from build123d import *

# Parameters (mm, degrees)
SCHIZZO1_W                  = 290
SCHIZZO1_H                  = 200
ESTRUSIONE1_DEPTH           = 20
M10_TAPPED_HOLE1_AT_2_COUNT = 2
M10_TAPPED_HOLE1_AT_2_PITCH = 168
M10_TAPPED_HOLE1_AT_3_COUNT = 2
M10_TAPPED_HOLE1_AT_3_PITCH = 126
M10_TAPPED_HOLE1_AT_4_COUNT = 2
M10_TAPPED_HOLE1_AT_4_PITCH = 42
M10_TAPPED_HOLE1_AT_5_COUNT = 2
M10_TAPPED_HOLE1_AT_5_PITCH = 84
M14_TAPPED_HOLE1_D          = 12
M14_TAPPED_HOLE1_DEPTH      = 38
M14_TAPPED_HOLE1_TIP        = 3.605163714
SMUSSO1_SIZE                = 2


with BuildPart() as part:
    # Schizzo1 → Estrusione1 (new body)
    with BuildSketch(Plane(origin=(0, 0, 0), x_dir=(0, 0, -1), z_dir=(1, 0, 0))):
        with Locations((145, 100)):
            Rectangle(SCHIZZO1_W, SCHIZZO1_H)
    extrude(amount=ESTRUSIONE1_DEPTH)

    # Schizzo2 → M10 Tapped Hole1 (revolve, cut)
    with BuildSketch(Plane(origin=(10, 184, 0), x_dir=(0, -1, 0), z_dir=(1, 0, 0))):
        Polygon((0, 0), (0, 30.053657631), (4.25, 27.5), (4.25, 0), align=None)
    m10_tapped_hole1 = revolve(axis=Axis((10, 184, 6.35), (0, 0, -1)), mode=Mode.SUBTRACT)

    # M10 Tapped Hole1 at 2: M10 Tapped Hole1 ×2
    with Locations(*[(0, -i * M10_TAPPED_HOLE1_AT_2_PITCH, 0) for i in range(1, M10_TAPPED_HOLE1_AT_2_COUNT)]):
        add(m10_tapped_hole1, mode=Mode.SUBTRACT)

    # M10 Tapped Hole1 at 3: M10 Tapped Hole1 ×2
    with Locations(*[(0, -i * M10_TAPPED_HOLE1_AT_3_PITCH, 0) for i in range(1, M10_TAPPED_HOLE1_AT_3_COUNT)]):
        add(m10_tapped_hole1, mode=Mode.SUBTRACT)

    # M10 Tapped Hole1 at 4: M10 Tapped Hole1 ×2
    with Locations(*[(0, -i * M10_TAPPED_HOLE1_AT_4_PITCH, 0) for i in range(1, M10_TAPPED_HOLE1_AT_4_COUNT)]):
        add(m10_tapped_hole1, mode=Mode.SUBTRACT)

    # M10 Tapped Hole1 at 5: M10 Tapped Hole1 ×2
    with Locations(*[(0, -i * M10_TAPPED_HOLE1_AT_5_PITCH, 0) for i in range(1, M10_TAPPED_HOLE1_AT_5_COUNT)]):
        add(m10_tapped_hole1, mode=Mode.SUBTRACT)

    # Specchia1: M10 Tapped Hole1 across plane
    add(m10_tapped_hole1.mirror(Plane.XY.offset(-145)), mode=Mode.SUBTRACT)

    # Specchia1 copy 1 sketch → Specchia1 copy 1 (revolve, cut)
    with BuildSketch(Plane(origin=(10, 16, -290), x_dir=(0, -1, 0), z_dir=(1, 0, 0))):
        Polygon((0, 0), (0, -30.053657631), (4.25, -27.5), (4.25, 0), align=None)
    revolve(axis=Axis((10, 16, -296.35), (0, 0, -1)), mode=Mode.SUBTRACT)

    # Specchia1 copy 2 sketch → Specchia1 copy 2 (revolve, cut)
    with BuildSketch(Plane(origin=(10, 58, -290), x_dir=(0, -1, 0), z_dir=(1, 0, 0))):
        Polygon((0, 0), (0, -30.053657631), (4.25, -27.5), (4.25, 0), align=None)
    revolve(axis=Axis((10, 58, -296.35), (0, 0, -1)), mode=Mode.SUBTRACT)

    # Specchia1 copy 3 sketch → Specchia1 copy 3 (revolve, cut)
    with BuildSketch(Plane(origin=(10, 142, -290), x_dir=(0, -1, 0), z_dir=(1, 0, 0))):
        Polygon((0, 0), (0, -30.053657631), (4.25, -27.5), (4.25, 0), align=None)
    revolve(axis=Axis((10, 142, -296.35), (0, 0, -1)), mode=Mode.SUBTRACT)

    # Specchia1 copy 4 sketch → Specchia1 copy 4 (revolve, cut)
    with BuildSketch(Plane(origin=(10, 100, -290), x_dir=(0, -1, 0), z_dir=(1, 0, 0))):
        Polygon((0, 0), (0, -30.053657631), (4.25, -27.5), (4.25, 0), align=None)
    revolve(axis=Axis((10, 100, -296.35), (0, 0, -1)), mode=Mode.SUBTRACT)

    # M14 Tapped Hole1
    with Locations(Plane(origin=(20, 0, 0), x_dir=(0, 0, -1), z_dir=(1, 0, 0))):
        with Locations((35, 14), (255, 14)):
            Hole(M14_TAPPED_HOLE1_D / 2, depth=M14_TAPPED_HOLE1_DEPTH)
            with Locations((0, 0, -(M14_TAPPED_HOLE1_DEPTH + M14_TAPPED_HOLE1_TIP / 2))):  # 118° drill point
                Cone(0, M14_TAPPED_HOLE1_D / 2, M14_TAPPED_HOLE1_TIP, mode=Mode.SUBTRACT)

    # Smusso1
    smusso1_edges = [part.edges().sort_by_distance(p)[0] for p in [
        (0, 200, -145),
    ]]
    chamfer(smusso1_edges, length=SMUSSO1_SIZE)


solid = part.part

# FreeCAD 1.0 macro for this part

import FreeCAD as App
import Part
import Sketcher
from FreeCAD import Vector
Q = App.Units.Quantity


def edges_at(feature, points):
    """Names of the edges that pass closest to the given points."""
    edges = feature.Shape.Edges
    near = lambda p: min(range(len(edges)), key=lambda i: edges[i].distToShape(Part.Vertex(*p))[0])
    return sorted({f"Edge{near(p) + 1}" for p in points})

doc = App.newDocument("Part")
params = doc.addObject("Spreadsheet::Sheet", "Params")
for row, (alias, value) in enumerate([
    ("sketch1_width", "200 mm"),
    ("sketch1_height", "290 mm"),
    ("pad1_length", "20 mm"),
    ("sketch2_height", "27.5 mm"),
    ("sketch2_width", "4.25 mm"),
    ("groove_angle", "360 deg"),
    ("linearpattern_pitch", "168 mm"),
    ("linearpattern2_pitch", "126 mm"),
    ("linearpattern3_pitch", "42 mm"),
    ("linearpattern4_pitch", "84 mm"),
    ("sketch3_height", "27.5 mm"),
    ("sketch3_width", "4.25 mm"),
    ("groove2_angle", "360 deg"),
    ("sketch4_height", "27.5 mm"),
    ("sketch4_width", "4.25 mm"),
    ("groove3_angle", "360 deg"),
    ("sketch5_height", "27.5 mm"),
    ("sketch5_width", "4.25 mm"),
    ("groove4_angle", "360 deg"),
    ("sketch6_height", "27.5 mm"),
    ("sketch6_width", "4.25 mm"),
    ("groove5_angle", "360 deg"),
    ("sketch7_diameter", "12 mm"),
    ("hole_diameter", "12 mm"),
    ("hole_depth", "38 mm"),
    ("chamfer_size", "2 mm"),
], start=1):
    params.set(f"A{row}", alias)
    params.set(f"B{row}", "=" + value)
    params.setAlias(f"B{row}", alias)

body = doc.addObject("PartDesign::Body", "Body")

# Sketch on YZ plane
sketch1 = body.newObject("Sketcher::SketchObject", "Sketch")
sketch1.AttachmentSupport = (doc.getObject("YZ_Plane"), [""])
sketch1.MapMode = "FlatFace"
sketch1.addGeometry([
    Part.LineSegment(Vector(200, 0, 0), Vector(0, 0, 0)),
    Part.LineSegment(Vector(0, 0, 0), Vector(0, -290, 0)),
    Part.LineSegment(Vector(0, -290, 0), Vector(200, -290, 0)),
    Part.LineSegment(Vector(200, -290, 0), Vector(200, 0, 0)),
], False)
sketch1.addConstraint([
    Sketcher.Constraint("Coincident", 0, 2, 1, 1),
    Sketcher.Constraint("Coincident", 1, 2, 2, 1),
    Sketcher.Constraint("Coincident", 2, 2, 3, 1),
    Sketcher.Constraint("Coincident", 3, 2, 0, 1),
    Sketcher.Constraint("Horizontal", 0),
    Sketcher.Constraint("Vertical", 1),
    Sketcher.Constraint("Horizontal", 2),
    Sketcher.Constraint("Vertical", 3),
    Sketcher.Constraint("Coincident", 0, 2, -1, 1),
    Sketcher.Constraint("DistanceX", 0, 2, 0, 1, 200.0),
    Sketcher.Constraint("DistanceY", 1, 2, 1, 1, 290.0),
])
sketch1.setExpression("Constraints[9]", "Params.sketch1_width")
sketch1.setExpression("Constraints[10]", "Params.sketch1_height")
pad1 = body.newObject("PartDesign::Pad", "Pad")
pad1.Profile = sketch1
pad1.setExpression("Length", "Params.pad1_length")

# Sketch on YZ plane
sketch2 = body.newObject("Sketcher::SketchObject", "Sketch001")
sketch2.AttachmentSupport = (doc.getObject("YZ_Plane"), [""])
sketch2.MapMode = "FlatFace"
sketch2.AttachmentOffset = App.Placement(Vector(0, 0, 10), App.Rotation())
sketch2.addGeometry([
    Part.LineSegment(Vector(184, -30.053658, 0), Vector(184, 0, 0)),
    Part.LineSegment(Vector(184, 0, 0), Vector(179.75, 0, 0)),
    Part.LineSegment(Vector(179.75, 0, 0), Vector(179.75, -27.5, 0)),
    Part.LineSegment(Vector(179.75, -27.5, 0), Vector(184, -30.053658, 0)),
], False)
sketch2.addGeometry(Part.LineSegment(Vector(184, 0, 0), Vector(184, -30.053658, 0)), True)  # axis
sketch2.addConstraint([
    Sketcher.Constraint("Coincident", 0, 2, 1, 1),
    Sketcher.Constraint("Coincident", 1, 2, 2, 1),
    Sketcher.Constraint("Coincident", 2, 2, 3, 1),
    Sketcher.Constraint("Coincident", 3, 2, 0, 1),
    Sketcher.Constraint("Vertical", 0),
    Sketcher.Constraint("Horizontal", 1),
    Sketcher.Constraint("Vertical", 2),
    Sketcher.Constraint("Vertical", 4),
    Sketcher.Constraint("Coincident", 4, 1, 0, 2),
    Sketcher.Constraint("PointOnObject", 0, 2, -1),
    Sketcher.Constraint("Equal", 0, 4),
    Sketcher.Constraint("Angle", 3, Q("-31 deg")),
    Sketcher.Constraint("DistanceY", 2, 2, 2, 1, 27.5),
    Sketcher.Constraint("DistanceX", -1, 1, 0, 2, 184.0),
    Sketcher.Constraint("DistanceX", 1, 2, 1, 1, 4.25),
])
sketch2.setExpression("Constraints[12]", "Params.sketch2_height")
sketch2.setExpression("Constraints[14]", "Params.sketch2_width")
groove = body.newObject("PartDesign::Groove", "Groove")
groove.Profile = sketch2
groove.ReferenceAxis = (sketch2, ["Axis0"])
groove.setExpression("Angle", "Params.groove_angle")
doc.recompute()

linearpattern = body.newObject("PartDesign::LinearPattern", "LinearPattern")
linearpattern.Originals = [groove]
linearpattern.Direction = (doc.getObject("Y_Axis"), [""])
linearpattern.Mode = "offset"
linearpattern.setExpression("Offset", "Params.linearpattern_pitch")
linearpattern.Occurrences = 2
linearpattern.Reversed = True
body.Tip = linearpattern
doc.recompute()

linearpattern2 = body.newObject("PartDesign::LinearPattern", "LinearPattern001")
linearpattern2.Originals = [groove]
linearpattern2.Direction = (doc.getObject("Y_Axis"), [""])
linearpattern2.Mode = "offset"
linearpattern2.setExpression("Offset", "Params.linearpattern2_pitch")
linearpattern2.Occurrences = 2
linearpattern2.Reversed = True
body.Tip = linearpattern2
doc.recompute()

linearpattern3 = body.newObject("PartDesign::LinearPattern", "LinearPattern002")
linearpattern3.Originals = [groove]
linearpattern3.Direction = (doc.getObject("Y_Axis"), [""])
linearpattern3.Mode = "offset"
linearpattern3.setExpression("Offset", "Params.linearpattern3_pitch")
linearpattern3.Occurrences = 2
linearpattern3.Reversed = True
body.Tip = linearpattern3
doc.recompute()

linearpattern4 = body.newObject("PartDesign::LinearPattern", "LinearPattern003")
linearpattern4.Originals = [groove]
linearpattern4.Direction = (doc.getObject("Y_Axis"), [""])
linearpattern4.Mode = "offset"
linearpattern4.setExpression("Offset", "Params.linearpattern4_pitch")
linearpattern4.Occurrences = 2
linearpattern4.Reversed = True
body.Tip = linearpattern4
doc.recompute()

datumplane = body.newObject("PartDesign::Plane", "DatumPlane")
datumplane.AttachmentSupport = (doc.getObject("XY_Plane"), [""])
datumplane.MapMode = "FlatFace"
datumplane.AttachmentOffset = App.Placement(Vector(0, 0, -145), App.Rotation())
mirrored = body.newObject("PartDesign::Mirrored", "Mirrored")
mirrored.Originals = [groove]
mirrored.MirrorPlane = (datumplane, [""])
body.Tip = mirrored

# Sketch on YZ plane
sketch3 = body.newObject("Sketcher::SketchObject", "Sketch002")
sketch3.AttachmentSupport = (doc.getObject("YZ_Plane"), [""])
sketch3.MapMode = "FlatFace"
sketch3.AttachmentOffset = App.Placement(Vector(0, 0, 10), App.Rotation())
sketch3.addGeometry([
    Part.LineSegment(Vector(16, -290, 0), Vector(16, -259.946342, 0)),
    Part.LineSegment(Vector(16, -259.946342, 0), Vector(11.75, -262.5, 0)),
    Part.LineSegment(Vector(11.75, -262.5, 0), Vector(11.75, -290, 0)),
    Part.LineSegment(Vector(11.75, -290, 0), Vector(16, -290, 0)),
], False)
sketch3.addGeometry(Part.LineSegment(Vector(16, -259.946342, 0), Vector(16, -290, 0)), True)  # axis
sketch3.addConstraint([
    Sketcher.Constraint("Coincident", 0, 2, 1, 1),
    Sketcher.Constraint("Coincident", 1, 2, 2, 1),
    Sketcher.Constraint("Coincident", 2, 2, 3, 1),
    Sketcher.Constraint("Coincident", 3, 2, 0, 1),
    Sketcher.Constraint("Vertical", 0),
    Sketcher.Constraint("Vertical", 2),
    Sketcher.Constraint("Horizontal", 3),
    Sketcher.Constraint("Vertical", 4),
    Sketcher.Constraint("Coincident", 4, 1, 0, 2),
    Sketcher.Constraint("Horizontal", 2, 2, 4, 2),
    Sketcher.Constraint("Angle", 1, Q("-149 deg")),
    Sketcher.Constraint("DistanceY", 2, 2, 2, 1, 27.5),
    Sketcher.Constraint("DistanceX", -1, 1, 0, 2, 16.0),
    Sketcher.Constraint("DistanceY", 2, 2, -1, 1, 290.0),
    Sketcher.Constraint("DistanceX", 3, 1, 3, 2, 4.25),
])
sketch3.setExpression("Constraints[11]", "Params.sketch3_height")
sketch3.setExpression("Constraints[14]", "Params.sketch3_width")
groove2 = body.newObject("PartDesign::Groove", "Groove001")
groove2.Profile = sketch3
groove2.ReferenceAxis = (sketch3, ["Axis0"])
groove2.setExpression("Angle", "Params.groove2_angle")

# Sketch on YZ plane
sketch4 = body.newObject("Sketcher::SketchObject", "Sketch003")
sketch4.AttachmentSupport = (doc.getObject("YZ_Plane"), [""])
sketch4.MapMode = "FlatFace"
sketch4.AttachmentOffset = App.Placement(Vector(0, 0, 10), App.Rotation())
sketch4.addGeometry([
    Part.LineSegment(Vector(58, -290, 0), Vector(58, -259.946342, 0)),
    Part.LineSegment(Vector(58, -259.946342, 0), Vector(53.75, -262.5, 0)),
    Part.LineSegment(Vector(53.75, -262.5, 0), Vector(53.75, -290, 0)),
    Part.LineSegment(Vector(53.75, -290, 0), Vector(58, -290, 0)),
], False)
sketch4.addGeometry(Part.LineSegment(Vector(58, -259.946342, 0), Vector(58, -290, 0)), True)  # axis
sketch4.addConstraint([
    Sketcher.Constraint("Coincident", 0, 2, 1, 1),
    Sketcher.Constraint("Coincident", 1, 2, 2, 1),
    Sketcher.Constraint("Coincident", 2, 2, 3, 1),
    Sketcher.Constraint("Coincident", 3, 2, 0, 1),
    Sketcher.Constraint("Vertical", 0),
    Sketcher.Constraint("Vertical", 2),
    Sketcher.Constraint("Horizontal", 3),
    Sketcher.Constraint("Vertical", 4),
    Sketcher.Constraint("Coincident", 4, 1, 0, 2),
    Sketcher.Constraint("Horizontal", 2, 2, 4, 2),
    Sketcher.Constraint("Angle", 1, Q("-149 deg")),
    Sketcher.Constraint("DistanceY", 2, 2, 2, 1, 27.5),
    Sketcher.Constraint("DistanceX", -1, 1, 0, 2, 58.0),
    Sketcher.Constraint("DistanceY", 2, 2, -1, 1, 290.0),
    Sketcher.Constraint("DistanceX", 3, 1, 3, 2, 4.25),
])
sketch4.setExpression("Constraints[11]", "Params.sketch4_height")
sketch4.setExpression("Constraints[14]", "Params.sketch4_width")
groove3 = body.newObject("PartDesign::Groove", "Groove002")
groove3.Profile = sketch4
groove3.ReferenceAxis = (sketch4, ["Axis0"])
groove3.setExpression("Angle", "Params.groove3_angle")

# Sketch on YZ plane
sketch5 = body.newObject("Sketcher::SketchObject", "Sketch004")
sketch5.AttachmentSupport = (doc.getObject("YZ_Plane"), [""])
sketch5.MapMode = "FlatFace"
sketch5.AttachmentOffset = App.Placement(Vector(0, 0, 10), App.Rotation())
sketch5.addGeometry([
    Part.LineSegment(Vector(142, -290, 0), Vector(142, -259.946342, 0)),
    Part.LineSegment(Vector(142, -259.946342, 0), Vector(137.75, -262.5, 0)),
    Part.LineSegment(Vector(137.75, -262.5, 0), Vector(137.75, -290, 0)),
    Part.LineSegment(Vector(137.75, -290, 0), Vector(142, -290, 0)),
], False)
sketch5.addGeometry(Part.LineSegment(Vector(142, -259.946342, 0), Vector(142, -290, 0)), True)  # axis
sketch5.addConstraint([
    Sketcher.Constraint("Coincident", 0, 2, 1, 1),
    Sketcher.Constraint("Coincident", 1, 2, 2, 1),
    Sketcher.Constraint("Coincident", 2, 2, 3, 1),
    Sketcher.Constraint("Coincident", 3, 2, 0, 1),
    Sketcher.Constraint("Vertical", 0),
    Sketcher.Constraint("Vertical", 2),
    Sketcher.Constraint("Horizontal", 3),
    Sketcher.Constraint("Vertical", 4),
    Sketcher.Constraint("Coincident", 4, 1, 0, 2),
    Sketcher.Constraint("Horizontal", 2, 2, 4, 2),
    Sketcher.Constraint("Angle", 1, Q("-149 deg")),
    Sketcher.Constraint("DistanceY", 2, 2, 2, 1, 27.5),
    Sketcher.Constraint("DistanceX", -1, 1, 0, 2, 142.0),
    Sketcher.Constraint("DistanceY", 2, 2, -1, 1, 290.0),
    Sketcher.Constraint("DistanceX", 3, 1, 3, 2, 4.25),
])
sketch5.setExpression("Constraints[11]", "Params.sketch5_height")
sketch5.setExpression("Constraints[14]", "Params.sketch5_width")
groove4 = body.newObject("PartDesign::Groove", "Groove003")
groove4.Profile = sketch5
groove4.ReferenceAxis = (sketch5, ["Axis0"])
groove4.setExpression("Angle", "Params.groove4_angle")

# Sketch on YZ plane
sketch6 = body.newObject("Sketcher::SketchObject", "Sketch005")
sketch6.AttachmentSupport = (doc.getObject("YZ_Plane"), [""])
sketch6.MapMode = "FlatFace"
sketch6.AttachmentOffset = App.Placement(Vector(0, 0, 10), App.Rotation())
sketch6.addGeometry([
    Part.LineSegment(Vector(100, -290, 0), Vector(100, -259.946342, 0)),
    Part.LineSegment(Vector(100, -259.946342, 0), Vector(95.75, -262.5, 0)),
    Part.LineSegment(Vector(95.75, -262.5, 0), Vector(95.75, -290, 0)),
    Part.LineSegment(Vector(95.75, -290, 0), Vector(100, -290, 0)),
], False)
sketch6.addGeometry(Part.LineSegment(Vector(100, -259.946342, 0), Vector(100, -290, 0)), True)  # axis
sketch6.addConstraint([
    Sketcher.Constraint("Coincident", 0, 2, 1, 1),
    Sketcher.Constraint("Coincident", 1, 2, 2, 1),
    Sketcher.Constraint("Coincident", 2, 2, 3, 1),
    Sketcher.Constraint("Coincident", 3, 2, 0, 1),
    Sketcher.Constraint("Vertical", 0),
    Sketcher.Constraint("Vertical", 2),
    Sketcher.Constraint("Horizontal", 3),
    Sketcher.Constraint("Vertical", 4),
    Sketcher.Constraint("Coincident", 4, 1, 0, 2),
    Sketcher.Constraint("Horizontal", 2, 2, 4, 2),
    Sketcher.Constraint("Angle", 1, Q("-149 deg")),
    Sketcher.Constraint("DistanceY", 2, 2, 2, 1, 27.5),
    Sketcher.Constraint("DistanceX", -1, 1, 0, 2, 100.0),
    Sketcher.Constraint("DistanceY", 2, 2, -1, 1, 290.0),
    Sketcher.Constraint("DistanceX", 3, 1, 3, 2, 4.25),
])
sketch6.setExpression("Constraints[11]", "Params.sketch6_height")
sketch6.setExpression("Constraints[14]", "Params.sketch6_width")
groove5 = body.newObject("PartDesign::Groove", "Groove004")
groove5.Profile = sketch6
groove5.ReferenceAxis = (sketch6, ["Axis0"])
groove5.setExpression("Angle", "Params.groove5_angle")

# Sketch on YZ plane
sketch7 = body.newObject("Sketcher::SketchObject", "Sketch006")
sketch7.AttachmentSupport = (doc.getObject("YZ_Plane"), [""])
sketch7.MapMode = "FlatFace"
sketch7.AttachmentOffset = App.Placement(Vector(0, 0, 20), App.Rotation())
sketch7.addGeometry([
    Part.Circle(Vector(14, -35, 0), Vector(0, 0, 1), 6),
    Part.Circle(Vector(14, -255, 0), Vector(0, 0, 1), 6),
], False)
sketch7.addConstraint([
    Sketcher.Constraint("Equal", 0, 1),
    Sketcher.Constraint("Vertical", 0, 3, 1, 3),
    Sketcher.Constraint("Diameter", 0, 12.0),
    Sketcher.Constraint("DistanceX", -1, 1, 0, 3, 14.0),
    Sketcher.Constraint("DistanceY", 0, 3, -1, 1, 35.0),
    Sketcher.Constraint("DistanceY", 1, 3, -1, 1, 255.0),
])
sketch7.setExpression("Constraints[2]", "Params.sketch7_diameter")
doc.recompute()
hole = body.newObject("PartDesign::Hole", "Hole")
hole.Profile = sketch7
hole.ThreadType = "None"
hole.setExpression("Diameter", "Params.hole_diameter")
hole.DepthType = "Dimension"
hole.setExpression("Depth", "Params.hole_depth")
hole.DrillPoint = "Angled"
hole.DrillPointAngle = 118
doc.recompute()

chamfer = body.newObject("PartDesign::Chamfer", "Chamfer")
chamfer.Base = (hole, edges_at(hole, [(0, 200, -145)]))
chamfer.setExpression("Size", "Params.chamfer_size")

doc.recompute()
